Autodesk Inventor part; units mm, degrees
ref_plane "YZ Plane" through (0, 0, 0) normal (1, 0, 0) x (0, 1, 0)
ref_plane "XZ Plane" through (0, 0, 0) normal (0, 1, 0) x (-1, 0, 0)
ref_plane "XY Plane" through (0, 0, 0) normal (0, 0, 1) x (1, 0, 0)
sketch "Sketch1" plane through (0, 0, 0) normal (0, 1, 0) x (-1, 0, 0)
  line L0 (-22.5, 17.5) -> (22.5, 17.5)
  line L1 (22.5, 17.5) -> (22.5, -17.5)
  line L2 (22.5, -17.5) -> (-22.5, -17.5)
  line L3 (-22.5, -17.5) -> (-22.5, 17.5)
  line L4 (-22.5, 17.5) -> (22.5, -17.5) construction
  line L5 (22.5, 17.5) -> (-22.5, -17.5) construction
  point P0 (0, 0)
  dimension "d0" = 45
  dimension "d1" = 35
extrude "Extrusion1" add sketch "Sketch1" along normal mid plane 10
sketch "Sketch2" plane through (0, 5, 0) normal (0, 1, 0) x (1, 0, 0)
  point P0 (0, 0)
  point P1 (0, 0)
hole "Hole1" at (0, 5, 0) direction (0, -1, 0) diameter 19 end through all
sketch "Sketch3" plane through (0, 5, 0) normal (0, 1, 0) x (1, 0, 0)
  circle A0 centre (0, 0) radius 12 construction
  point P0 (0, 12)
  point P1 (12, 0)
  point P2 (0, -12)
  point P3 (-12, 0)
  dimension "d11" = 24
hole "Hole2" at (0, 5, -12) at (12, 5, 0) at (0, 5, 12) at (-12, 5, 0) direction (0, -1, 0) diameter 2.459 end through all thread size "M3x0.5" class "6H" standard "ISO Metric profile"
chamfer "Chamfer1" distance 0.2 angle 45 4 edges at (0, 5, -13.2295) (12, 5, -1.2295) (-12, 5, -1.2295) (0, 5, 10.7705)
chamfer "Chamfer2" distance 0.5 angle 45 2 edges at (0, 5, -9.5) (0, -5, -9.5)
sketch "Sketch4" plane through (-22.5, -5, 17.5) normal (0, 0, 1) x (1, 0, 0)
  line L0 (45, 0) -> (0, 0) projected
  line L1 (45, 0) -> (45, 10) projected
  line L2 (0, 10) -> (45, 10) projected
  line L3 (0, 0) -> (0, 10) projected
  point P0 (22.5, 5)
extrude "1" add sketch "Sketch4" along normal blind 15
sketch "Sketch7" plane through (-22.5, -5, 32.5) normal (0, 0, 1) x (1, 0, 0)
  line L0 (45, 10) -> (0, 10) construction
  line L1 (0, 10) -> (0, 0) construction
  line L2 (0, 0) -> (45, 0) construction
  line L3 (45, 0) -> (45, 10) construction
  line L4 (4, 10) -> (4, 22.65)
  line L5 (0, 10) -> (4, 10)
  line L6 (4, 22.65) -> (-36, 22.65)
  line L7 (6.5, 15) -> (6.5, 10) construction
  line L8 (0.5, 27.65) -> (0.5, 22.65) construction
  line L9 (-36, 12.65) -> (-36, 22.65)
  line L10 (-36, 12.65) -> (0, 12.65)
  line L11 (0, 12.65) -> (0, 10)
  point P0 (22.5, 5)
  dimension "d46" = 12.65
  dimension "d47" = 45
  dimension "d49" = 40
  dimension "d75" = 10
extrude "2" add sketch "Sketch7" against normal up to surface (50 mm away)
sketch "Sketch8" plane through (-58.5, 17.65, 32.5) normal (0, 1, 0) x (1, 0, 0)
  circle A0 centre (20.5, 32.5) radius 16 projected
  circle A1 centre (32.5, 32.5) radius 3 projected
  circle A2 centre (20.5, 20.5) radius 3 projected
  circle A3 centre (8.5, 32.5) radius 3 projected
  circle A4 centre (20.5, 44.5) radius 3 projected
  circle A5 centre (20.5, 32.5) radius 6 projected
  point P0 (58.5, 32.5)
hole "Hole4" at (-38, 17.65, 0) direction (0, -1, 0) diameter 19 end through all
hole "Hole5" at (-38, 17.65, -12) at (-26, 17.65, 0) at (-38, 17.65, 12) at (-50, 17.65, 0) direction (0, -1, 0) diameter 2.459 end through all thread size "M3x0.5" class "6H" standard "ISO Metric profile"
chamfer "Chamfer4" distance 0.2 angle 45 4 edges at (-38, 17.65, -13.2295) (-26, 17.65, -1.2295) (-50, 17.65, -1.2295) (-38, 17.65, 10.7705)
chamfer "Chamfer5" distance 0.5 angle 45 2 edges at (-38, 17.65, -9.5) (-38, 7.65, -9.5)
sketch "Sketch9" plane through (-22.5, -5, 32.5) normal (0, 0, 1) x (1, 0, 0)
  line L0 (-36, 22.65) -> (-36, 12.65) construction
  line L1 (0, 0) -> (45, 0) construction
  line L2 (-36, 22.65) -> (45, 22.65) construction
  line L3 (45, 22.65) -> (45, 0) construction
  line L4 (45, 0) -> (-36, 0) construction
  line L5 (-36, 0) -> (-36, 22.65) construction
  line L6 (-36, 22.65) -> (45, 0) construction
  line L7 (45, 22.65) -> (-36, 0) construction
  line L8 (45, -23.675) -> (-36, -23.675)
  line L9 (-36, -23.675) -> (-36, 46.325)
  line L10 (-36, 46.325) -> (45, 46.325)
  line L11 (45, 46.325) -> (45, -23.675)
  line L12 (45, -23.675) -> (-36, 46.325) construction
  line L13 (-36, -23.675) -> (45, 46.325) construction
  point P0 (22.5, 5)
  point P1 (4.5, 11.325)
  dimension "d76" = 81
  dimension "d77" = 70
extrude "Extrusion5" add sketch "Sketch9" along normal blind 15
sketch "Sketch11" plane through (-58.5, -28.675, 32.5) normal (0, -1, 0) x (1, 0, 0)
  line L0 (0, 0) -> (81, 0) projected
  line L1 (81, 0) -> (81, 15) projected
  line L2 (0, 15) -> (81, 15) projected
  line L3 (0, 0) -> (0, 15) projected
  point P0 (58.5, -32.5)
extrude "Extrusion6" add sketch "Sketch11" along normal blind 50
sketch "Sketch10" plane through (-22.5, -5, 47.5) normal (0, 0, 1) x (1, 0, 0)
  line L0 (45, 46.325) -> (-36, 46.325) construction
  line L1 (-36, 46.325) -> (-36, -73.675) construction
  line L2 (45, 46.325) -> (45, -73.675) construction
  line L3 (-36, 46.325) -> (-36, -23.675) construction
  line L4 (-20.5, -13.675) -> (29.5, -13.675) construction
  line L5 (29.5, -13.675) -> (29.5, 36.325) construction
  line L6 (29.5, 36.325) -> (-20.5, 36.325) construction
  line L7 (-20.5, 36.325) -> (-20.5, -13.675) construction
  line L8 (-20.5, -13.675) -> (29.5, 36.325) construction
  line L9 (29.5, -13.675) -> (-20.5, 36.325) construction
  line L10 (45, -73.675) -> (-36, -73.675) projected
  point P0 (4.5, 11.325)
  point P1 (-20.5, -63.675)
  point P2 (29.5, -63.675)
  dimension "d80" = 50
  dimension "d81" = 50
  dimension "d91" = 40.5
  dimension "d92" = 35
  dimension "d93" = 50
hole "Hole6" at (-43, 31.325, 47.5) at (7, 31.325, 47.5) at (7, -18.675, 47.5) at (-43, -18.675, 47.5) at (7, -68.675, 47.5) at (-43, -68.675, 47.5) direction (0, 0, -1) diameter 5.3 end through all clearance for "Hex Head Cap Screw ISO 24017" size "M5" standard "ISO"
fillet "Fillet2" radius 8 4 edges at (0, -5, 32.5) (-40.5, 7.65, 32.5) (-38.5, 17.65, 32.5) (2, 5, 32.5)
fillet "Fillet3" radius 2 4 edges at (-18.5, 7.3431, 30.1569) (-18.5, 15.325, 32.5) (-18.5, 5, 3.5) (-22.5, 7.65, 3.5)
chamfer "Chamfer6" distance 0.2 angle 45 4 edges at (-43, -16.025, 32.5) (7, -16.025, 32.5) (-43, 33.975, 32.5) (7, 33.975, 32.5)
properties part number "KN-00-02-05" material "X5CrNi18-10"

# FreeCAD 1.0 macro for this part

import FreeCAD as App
import Part
import Sketcher

V = App.Vector
Q = App.Units.Quantity


def edges_at(feature, points):
    """Names of the edges that pass closest to the given points."""
    edges = feature.Shape.Edges
    near = lambda p: min(range(len(edges)), key=lambda i: edges[i].distToShape(Part.Vertex(*p))[0])
    return sorted({f"Edge{near(p) + 1}" for p in points})

doc = App.newDocument("Part")
body = doc.addObject("PartDesign::Body", "Body")

# Sketch on XZ plane
sketch1 = body.newObject("Sketcher::SketchObject", "Sketch")
sketch1.AttachmentSupport = (doc.getObject("XZ_Plane"), [""])
sketch1.MapMode = "FlatFace"
sketch1.addGeometry(Part.LineSegment(V(-22, 18, 0), V(22, 18, 0)), False)
sketch1.addGeometry(Part.LineSegment(V(22, 18, 0), V(22, -18, 0)), False)
sketch1.addGeometry(Part.LineSegment(V(22, -18, 0), V(-22, -18, 0)), False)
sketch1.addGeometry(Part.LineSegment(V(-22, -18, 0), V(-22, 18, 0)), False)
sketch1.addConstraint(Sketcher.Constraint("Coincident", 0, 2, 1, 1))
sketch1.addConstraint(Sketcher.Constraint("Coincident", 1, 2, 2, 1))
sketch1.addConstraint(Sketcher.Constraint("Coincident", 2, 2, 3, 1))
sketch1.addConstraint(Sketcher.Constraint("Coincident", 3, 2, 0, 1))
sketch1.addConstraint(Sketcher.Constraint("Horizontal", 0))
sketch1.addConstraint(Sketcher.Constraint("Vertical", 1))
sketch1.addConstraint(Sketcher.Constraint("Horizontal", 2))
sketch1.addConstraint(Sketcher.Constraint("Vertical", 3))
sketch1.addConstraint(Sketcher.Constraint("Symmetric", 0, 2, 2, 2, -1, 1))
sketch1.addConstraint(Sketcher.Constraint("DistanceX", 0, 1, 0, 2, Q("45 mm")))
sketch1.addConstraint(Sketcher.Constraint("DistanceY", 1, 2, 1, 1, Q("35 mm")))
pad1 = body.newObject("PartDesign::Pad", "Pad")
pad1.Profile = sketch1
pad1.Length = 10
pad1.Midplane = True

# Sketch on XZ plane
sketch2 = body.newObject("Sketcher::SketchObject", "Sketch001")
sketch2.AttachmentSupport = (doc.getObject("XZ_Plane"), [""])
sketch2.MapMode = "FlatFace"
sketch2.AttachmentOffset = App.Placement(V(0, 0, -5), App.Rotation())
sketch2.addGeometry(Part.Circle(V(0, 0, 0), V(0, 0, 1), 10), False)
sketch2.addConstraint(Sketcher.Constraint("Coincident", 0, 3, -1, 1))
sketch2.addConstraint(Sketcher.Constraint("Diameter", 0, Q("19 mm")))
doc.recompute()
hole = body.newObject("PartDesign::Hole", "Hole")
hole.Profile = sketch2
hole.ThreadType = "None"
hole.Diameter = 19
hole.DepthType = "ThroughAll"
hole.Reversed = True

# Sketch on XZ plane
sketch3 = body.newObject("Sketcher::SketchObject", "Sketch002")
sketch3.AttachmentSupport = (doc.getObject("XZ_Plane"), [""])
sketch3.MapMode = "FlatFace"
sketch3.AttachmentOffset = App.Placement(V(0, 0, -5), App.Rotation())
sketch3.addGeometry(Part.Circle(V(0, -12, 0), V(0, 0, 1), 1.2), False)
sketch3.addGeometry(Part.Circle(V(12, 0, 0), V(0, 0, 1), 1.2), False)
sketch3.addGeometry(Part.Circle(V(0, 12, 0), V(0, 0, 1), 1.2), False)
sketch3.addGeometry(Part.Circle(V(-12, 0, 0), V(0, 0, 1), 1.2), False)
sketch3.addConstraint(Sketcher.Constraint("Equal", 0, 1))
sketch3.addConstraint(Sketcher.Constraint("Equal", 1, 2))
sketch3.addConstraint(Sketcher.Constraint("Equal", 2, 3))
sketch3.addConstraint(Sketcher.Constraint("Symmetric", 0, 3, 2, 3, -1, 1))
sketch3.addConstraint(Sketcher.Constraint("Symmetric", 1, 3, 3, 3, -1, 1))
sketch3.addConstraint(Sketcher.Constraint("PointOnObject", 0, 3, -2))
sketch3.addConstraint(Sketcher.Constraint("PointOnObject", 1, 3, -1))
sketch3.addConstraint(Sketcher.Constraint("Diameter", 0, Q("2.459 mm")))
sketch3.addConstraint(Sketcher.Constraint("DistanceY", 0, 3, -1, 1, Q("12 mm")))
sketch3.addConstraint(Sketcher.Constraint("DistanceX", -1, 1, 1, 3, Q("12 mm")))
doc.recompute()
hole2 = body.newObject("PartDesign::Hole", "Hole001")
hole2.Profile = sketch3
hole2.ThreadType = "None"
hole2.Diameter = 2.459
hole2.DepthType = "ThroughAll"
hole2.Reversed = True
doc.recompute()

chamfer = body.newObject("PartDesign::Chamfer", "Chamfer")
chamfer.Base = (hole2, edges_at(hole2, [
    (0, 5, -13.229),
    (12, 5, -1.23),
    (-12, 5, -1.23),
    (0, 5, 10.771),
]))
chamfer.Size = 0.2
doc.recompute()

chamfer2 = body.newObject("PartDesign::Chamfer", "Chamfer001")
chamfer2.Base = (chamfer, edges_at(chamfer, [(0, 5, -9.5), (0, -5, -9.5)]))
chamfer2.Size = 0.5

# Sketch on XY plane
sketch4 = body.newObject("Sketcher::SketchObject", "Sketch003")
sketch4.AttachmentSupport = (doc.getObject("XY_Plane"), [""])
sketch4.MapMode = "FlatFace"
sketch4.AttachmentOffset = App.Placement(V(0, 0, 17.5), App.Rotation())
sketch4.addGeometry(Part.LineSegment(V(-22, -5, 0), V(22, -5, 0)), False)
sketch4.addGeometry(Part.LineSegment(V(22, -5, 0), V(22, 5, 0)), False)
sketch4.addGeometry(Part.LineSegment(V(22, 5, 0), V(-22, 5, 0)), False)
sketch4.addGeometry(Part.LineSegment(V(-22, 5, 0), V(-22, -5, 0)), False)
sketch4.addConstraint(Sketcher.Constraint("Coincident", 0, 2, 1, 1))
sketch4.addConstraint(Sketcher.Constraint("Coincident", 1, 2, 2, 1))
sketch4.addConstraint(Sketcher.Constraint("Coincident", 2, 2, 3, 1))
sketch4.addConstraint(Sketcher.Constraint("Coincident", 3, 2, 0, 1))
sketch4.addConstraint(Sketcher.Constraint("Horizontal", 0))
sketch4.addConstraint(Sketcher.Constraint("Vertical", 1))
sketch4.addConstraint(Sketcher.Constraint("Horizontal", 2))
sketch4.addConstraint(Sketcher.Constraint("Vertical", 3))
sketch4.addConstraint(Sketcher.Constraint("Symmetric", 0, 2, 2, 2, -1, 1))
sketch4.addConstraint(Sketcher.Constraint("DistanceX", 0, 1, 0, 2, Q("45 mm")))
sketch4.addConstraint(Sketcher.Constraint("DistanceY", 1, 1, 1, 2, Q("10 mm")))
pad2 = body.newObject("PartDesign::Pad", "Pad001")
pad2.Profile = sketch4
pad2.Length = 15

# Sketch on XY plane
sketch5 = body.newObject("Sketcher::SketchObject", "Sketch004")
sketch5.AttachmentSupport = (doc.getObject("XY_Plane"), [""])
sketch5.MapMode = "FlatFace"
sketch5.AttachmentOffset = App.Placement(V(0, 0, 32.5), App.Rotation())
sketch5.addGeometry(Part.LineSegment(V(-22.5, 5, 0), V(-18.5, 5, 0)), False)
sketch5.addGeometry(Part.LineSegment(V(-18.5, 5, 0), V(-18.5, 17.6, 0)), False)
sketch5.addGeometry(Part.LineSegment(V(-18.5, 17.6, 0), V(-58.5, 17.6, 0)), False)
sketch5.addGeometry(Part.LineSegment(V(-58.5, 17.6, 0), V(-58.5, 7.7, 0)), False)
sketch5.addGeometry(Part.LineSegment(V(-58.5, 7.7, 0), V(-22.5, 7.7, 0)), False)
sketch5.addGeometry(Part.LineSegment(V(-22.5, 7.7, 0), V(-22.5, 5, 0)), False)
sketch5.addConstraint(Sketcher.Constraint("Coincident", 0, 2, 1, 1))
sketch5.addConstraint(Sketcher.Constraint("Coincident", 1, 2, 2, 1))
sketch5.addConstraint(Sketcher.Constraint("Coincident", 2, 2, 3, 1))
sketch5.addConstraint(Sketcher.Constraint("Coincident", 3, 2, 4, 1))
sketch5.addConstraint(Sketcher.Constraint("Coincident", 4, 2, 5, 1))
sketch5.addConstraint(Sketcher.Constraint("Coincident", 5, 2, 0, 1))
sketch5.addConstraint(Sketcher.Constraint("Horizontal", 0))
sketch5.addConstraint(Sketcher.Constraint("Vertical", 1))
sketch5.addConstraint(Sketcher.Constraint("Horizontal", 2))
sketch5.addConstraint(Sketcher.Constraint("Vertical", 3))
sketch5.addConstraint(Sketcher.Constraint("Horizontal", 4))
sketch5.addConstraint(Sketcher.Constraint("Vertical", 5))
sketch5.addConstraint(Sketcher.Constraint("DistanceX", 2, 2, 2, 1, Q("40 mm")))
sketch5.addConstraint(Sketcher.Constraint("DistanceY", 3, 2, 3, 1, Q("10 mm")))
sketch5.addConstraint(Sketcher.Constraint("DistanceY", 1, 1, 1, 2, Q("12.65 mm")))
sketch5.addConstraint(Sketcher.Constraint("DistanceX", 0, 1, 0, 2, Q("4 mm")))
sketch5.addConstraint(Sketcher.Constraint("DistanceY", -1, 1, 0, 2, Q("5 mm")))
sketch5.addConstraint(Sketcher.Constraint("DistanceX", 0, 2, -1, 1, Q("18.5 mm")))
pad3 = body.newObject("PartDesign::Pad", "Pad002")
pad3.Profile = sketch5
pad3.Length = 50
pad3.Reversed = True

# Sketch on XZ plane
sketch6 = body.newObject("Sketcher::SketchObject", "Sketch005")
sketch6.AttachmentSupport = (doc.getObject("XZ_Plane"), [""])
sketch6.MapMode = "FlatFace"
sketch6.AttachmentOffset = App.Placement(V(0, 0, -17.65), App.Rotation())
sketch6.addGeometry(Part.Circle(V(-38, 0, 0), V(0, 0, 1), 10), False)
sketch6.addConstraint(Sketcher.Constraint("PointOnObject", 0, 3, -1))
sketch6.addConstraint(Sketcher.Constraint("Diameter", 0, Q("19 mm")))
sketch6.addConstraint(Sketcher.Constraint("DistanceX", 0, 3, -1, 1, Q("38 mm")))
doc.recompute()
hole3 = body.newObject("PartDesign::Hole", "Hole002")
hole3.Profile = sketch6
hole3.ThreadType = "None"
hole3.Diameter = 19
hole3.DepthType = "ThroughAll"
hole3.Reversed = True

# Sketch on XZ plane
sketch7 = body.newObject("Sketcher::SketchObject", "Sketch006")
sketch7.AttachmentSupport = (doc.getObject("XZ_Plane"), [""])
sketch7.MapMode = "FlatFace"
sketch7.AttachmentOffset = App.Placement(V(0, 0, -17.65), App.Rotation())
sketch7.addGeometry(Part.Circle(V(-38, -12, 0), V(0, 0, 1), 1.2), False)
sketch7.addGeometry(Part.Circle(V(-26, 0, 0), V(0, 0, 1), 1.2), False)
sketch7.addGeometry(Part.Circle(V(-38, 12, 0), V(0, 0, 1), 1.2), False)
sketch7.addGeometry(Part.Circle(V(-50, 0, 0), V(0, 0, 1), 1.2), False)
sketch7.addConstraint(Sketcher.Constraint("Equal", 0, 1))
sketch7.addConstraint(Sketcher.Constraint("Equal", 1, 2))
sketch7.addConstraint(Sketcher.Constraint("Equal", 2, 3))
sketch7.addConstraint(Sketcher.Constraint("Symmetric", 0, 3, 2, 3, -1))
sketch7.addConstraint(Sketcher.Constraint("PointOnObject", 1, 3, -1))
sketch7.addConstraint(Sketcher.Constraint("PointOnObject", 3, 3, -1))
sketch7.addConstraint(Sketcher.Constraint("Diameter", 0, Q("2.459 mm")))
sketch7.addConstraint(Sketcher.Constraint("DistanceX", 0, 3, -1, 1, Q("38 mm")))
sketch7.addConstraint(Sketcher.Constraint("DistanceY", 0, 3, -1, 1, Q("12 mm")))
sketch7.addConstraint(Sketcher.Constraint("DistanceX", 1, 3, -1, 1, Q("26 mm")))
sketch7.addConstraint(Sketcher.Constraint("DistanceX", 3, 3, -1, 1, Q("50 mm")))
doc.recompute()
hole4 = body.newObject("PartDesign::Hole", "Hole003")
hole4.Profile = sketch7
hole4.ThreadType = "None"
hole4.Diameter = 2.459
hole4.DepthType = "ThroughAll"
hole4.Reversed = True
doc.recompute()

chamfer3 = body.newObject("PartDesign::Chamfer", "Chamfer002")
chamfer3.Base = (hole4, edges_at(hole4, [
    (-38, 17.65, -13.229),
    (-26, 17.65, -1.23),
    (-50, 17.65, -1.23),
    (-38, 17.65, 10.771),
]))
chamfer3.Size = 0.2
doc.recompute()

chamfer4 = body.newObject("PartDesign::Chamfer", "Chamfer003")
chamfer4.Base = (chamfer3, edges_at(chamfer3, [(-38, 17.65, -9.5), (-38, 7.65, -9.5)]))
chamfer4.Size = 0.5

# Sketch on XY plane
sketch8 = body.newObject("Sketcher::SketchObject", "Sketch007")
sketch8.AttachmentSupport = (doc.getObject("XY_Plane"), [""])
sketch8.MapMode = "FlatFace"
sketch8.AttachmentOffset = App.Placement(V(0, 0, 32.5), App.Rotation())
sketch8.addGeometry(Part.LineSegment(V(-58, -29, 0), V(22, -29, 0)), False)
sketch8.addGeometry(Part.LineSegment(V(22, -29, 0), V(22, 41, 0)), False)
sketch8.addGeometry(Part.LineSegment(V(22, 41, 0), V(-58, 41, 0)), False)
sketch8.addGeometry(Part.LineSegment(V(-58, 41, 0), V(-58, -29, 0)), False)
sketch8.addConstraint(Sketcher.Constraint("Coincident", 0, 2, 1, 1))
sketch8.addConstraint(Sketcher.Constraint("Coincident", 1, 2, 2, 1))
sketch8.addConstraint(Sketcher.Constraint("Coincident", 2, 2, 3, 1))
sketch8.addConstraint(Sketcher.Constraint("Coincident", 3, 2, 0, 1))
sketch8.addConstraint(Sketcher.Constraint("Horizontal", 0))
sketch8.addConstraint(Sketcher.Constraint("Vertical", 1))
sketch8.addConstraint(Sketcher.Constraint("Horizontal", 2))
sketch8.addConstraint(Sketcher.Constraint("Vertical", 3))
sketch8.addConstraint(Sketcher.Constraint("DistanceX", 0, 1, 0, 2, Q("81 mm")))
sketch8.addConstraint(Sketcher.Constraint("DistanceY", 1, 1, 1, 2, Q("70 mm")))
sketch8.addConstraint(Sketcher.Constraint("DistanceX", -1, 1, 0, 2, Q("22.5 mm")))
sketch8.addConstraint(Sketcher.Constraint("DistanceY", 0, 2, -1, 1, Q("28.675 mm")))
pad4 = body.newObject("PartDesign::Pad", "Pad003")
pad4.Profile = sketch8
pad4.Length = 15

# Sketch on XZ plane
sketch9 = body.newObject("Sketcher::SketchObject", "Sketch008")
sketch9.AttachmentSupport = (doc.getObject("XZ_Plane"), [""])
sketch9.MapMode = "FlatFace"
sketch9.AttachmentOffset = App.Placement(V(0, 0, 28.675), App.Rotation())
sketch9.addGeometry(Part.LineSegment(V(-58, 48, 0), V(-58, 32, 0)), False)
sketch9.addGeometry(Part.LineSegment(V(-58, 32, 0), V(22, 32, 0)), False)
sketch9.addGeometry(Part.LineSegment(V(22, 32, 0), V(22, 48, 0)), False)
sketch9.addGeometry(Part.LineSegment(V(22, 48, 0), V(-58, 48, 0)), False)
sketch9.addConstraint(Sketcher.Constraint("Coincident", 0, 2, 1, 1))
sketch9.addConstraint(Sketcher.Constraint("Coincident", 1, 2, 2, 1))
sketch9.addConstraint(Sketcher.Constraint("Coincident", 2, 2, 3, 1))
sketch9.addConstraint(Sketcher.Constraint("Coincident", 3, 2, 0, 1))
sketch9.addConstraint(Sketcher.Constraint("Vertical", 0))
sketch9.addConstraint(Sketcher.Constraint("Horizontal", 1))
sketch9.addConstraint(Sketcher.Constraint("Vertical", 2))
sketch9.addConstraint(Sketcher.Constraint("Horizontal", 3))
sketch9.addConstraint(Sketcher.Constraint("DistanceX", 1, 1, 1, 2, Q("81 mm")))
sketch9.addConstraint(Sketcher.Constraint("DistanceY", 0, 2, 0, 1, Q("15 mm")))
sketch9.addConstraint(Sketcher.Constraint("DistanceX", 0, 2, -1, 1, Q("58.5 mm")))
sketch9.addConstraint(Sketcher.Constraint("DistanceY", -1, 1, 0, 2, Q("32.5 mm")))
pad5 = body.newObject("PartDesign::Pad", "Pad004")
pad5.Profile = sketch9
pad5.Length = 50

# Sketch on XY plane
sketch10 = body.newObject("Sketcher::SketchObject", "Sketch009")
sketch10.AttachmentSupport = (doc.getObject("XY_Plane"), [""])
sketch10.MapMode = "FlatFace"
sketch10.AttachmentOffset = App.Placement(V(0, 0, 47.5), App.Rotation())
sketch10.addGeometry(Part.Circle(V(-43, 31.3, 0), V(0, 0, 1), 2.6), False)
sketch10.addGeometry(Part.Circle(V(7, 31.3, 0), V(0, 0, 1), 2.6), False)
sketch10.addGeometry(Part.Circle(V(7, -18.7, 0), V(0, 0, 1), 2.6), False)
sketch10.addGeometry(Part.Circle(V(-43, -18.7, 0), V(0, 0, 1), 2.6), False)
sketch10.addGeometry(Part.Circle(V(7, -68.7, 0), V(0, 0, 1), 2.6), False)
sketch10.addGeometry(Part.Circle(V(-43, -68.7, 0), V(0, 0, 1), 2.6), False)
sketch10.addConstraint(Sketcher.Constraint("Equal", 0, 1))
sketch10.addConstraint(Sketcher.Constraint("Equal", 1, 2))
sketch10.addConstraint(Sketcher.Constraint("Equal", 2, 3))
sketch10.addConstraint(Sketcher.Constraint("Equal", 3, 4))
sketch10.addConstraint(Sketcher.Constraint("Equal", 4, 5))
sketch10.addConstraint(Sketcher.Constraint("Horizontal", 0, 3, 1, 3))
sketch10.addConstraint(Sketcher.Constraint("Horizontal", 2, 3, 3, 3))
sketch10.addConstraint(Sketcher.Constraint("Horizontal", 4, 3, 5, 3))
sketch10.addConstraint(Sketcher.Constraint("Vertical", 1, 3, 2, 3))
sketch10.addConstraint(Sketcher.Constraint("Vertical", 0, 3, 3, 3))
sketch10.addConstraint(Sketcher.Constraint("Vertical", 2, 3, 4, 3))
sketch10.addConstraint(Sketcher.Constraint("Vertical", 3, 3, 5, 3))
sketch10.addConstraint(Sketcher.Constraint("Diameter", 0, Q("5.3 mm")))
sketch10.addConstraint(Sketcher.Constraint("DistanceX", 0, 3, -1, 1, Q("43 mm")))
sketch10.addConstraint(Sketcher.Constraint("DistanceX", -1, 1, 1, 3, Q("7 mm")))
sketch10.addConstraint(Sketcher.Constraint("DistanceY", 2, 3, 1, 3, Q("50 mm")))
sketch10.addConstraint(Sketcher.Constraint("DistanceY", 4, 3, 2, 3, Q("50 mm")))
sketch10.addConstraint(Sketcher.Constraint("DistanceY", -1, 1, 0, 3, Q("31.325 mm")))
doc.recompute()
hole5 = body.newObject("PartDesign::Hole", "Hole004")
hole5.Profile = sketch10
hole5.ThreadType = "None"
hole5.Diameter = 5.3
hole5.DepthType = "ThroughAll"
doc.recompute()

fillet = body.newObject("PartDesign::Fillet", "Fillet")
fillet.Base = (hole5, edges_at(hole5, [
    (0, -5, 32.5),
    (-40.5, 7.65, 32.5),
    (-38.5, 17.65, 32.5),
    (2, 5, 32.5),
]))
fillet.Radius = 8
doc.recompute()

fillet2 = body.newObject("PartDesign::Fillet", "Fillet001")
fillet2.Base = (fillet, edges_at(fillet, [
    (-18.5, 7.343, 30.157),
    (-18.5, 15.325, 32.5),
    (-18.5, 5, 3.5),
    (-22.5, 7.65, 3.5),
]))
fillet2.Radius = 2
doc.recompute()

chamfer5 = body.newObject("PartDesign::Chamfer", "Chamfer004")
chamfer5.Base = (fillet2, edges_at(fillet2, [
    (-43, -16.025, 32.5),
    (7, -16.025, 32.5),
    (-43, 33.975, 32.5),
    (7, 33.975, 32.5),
]))
chamfer5.Size = 0.2

doc.recompute()
